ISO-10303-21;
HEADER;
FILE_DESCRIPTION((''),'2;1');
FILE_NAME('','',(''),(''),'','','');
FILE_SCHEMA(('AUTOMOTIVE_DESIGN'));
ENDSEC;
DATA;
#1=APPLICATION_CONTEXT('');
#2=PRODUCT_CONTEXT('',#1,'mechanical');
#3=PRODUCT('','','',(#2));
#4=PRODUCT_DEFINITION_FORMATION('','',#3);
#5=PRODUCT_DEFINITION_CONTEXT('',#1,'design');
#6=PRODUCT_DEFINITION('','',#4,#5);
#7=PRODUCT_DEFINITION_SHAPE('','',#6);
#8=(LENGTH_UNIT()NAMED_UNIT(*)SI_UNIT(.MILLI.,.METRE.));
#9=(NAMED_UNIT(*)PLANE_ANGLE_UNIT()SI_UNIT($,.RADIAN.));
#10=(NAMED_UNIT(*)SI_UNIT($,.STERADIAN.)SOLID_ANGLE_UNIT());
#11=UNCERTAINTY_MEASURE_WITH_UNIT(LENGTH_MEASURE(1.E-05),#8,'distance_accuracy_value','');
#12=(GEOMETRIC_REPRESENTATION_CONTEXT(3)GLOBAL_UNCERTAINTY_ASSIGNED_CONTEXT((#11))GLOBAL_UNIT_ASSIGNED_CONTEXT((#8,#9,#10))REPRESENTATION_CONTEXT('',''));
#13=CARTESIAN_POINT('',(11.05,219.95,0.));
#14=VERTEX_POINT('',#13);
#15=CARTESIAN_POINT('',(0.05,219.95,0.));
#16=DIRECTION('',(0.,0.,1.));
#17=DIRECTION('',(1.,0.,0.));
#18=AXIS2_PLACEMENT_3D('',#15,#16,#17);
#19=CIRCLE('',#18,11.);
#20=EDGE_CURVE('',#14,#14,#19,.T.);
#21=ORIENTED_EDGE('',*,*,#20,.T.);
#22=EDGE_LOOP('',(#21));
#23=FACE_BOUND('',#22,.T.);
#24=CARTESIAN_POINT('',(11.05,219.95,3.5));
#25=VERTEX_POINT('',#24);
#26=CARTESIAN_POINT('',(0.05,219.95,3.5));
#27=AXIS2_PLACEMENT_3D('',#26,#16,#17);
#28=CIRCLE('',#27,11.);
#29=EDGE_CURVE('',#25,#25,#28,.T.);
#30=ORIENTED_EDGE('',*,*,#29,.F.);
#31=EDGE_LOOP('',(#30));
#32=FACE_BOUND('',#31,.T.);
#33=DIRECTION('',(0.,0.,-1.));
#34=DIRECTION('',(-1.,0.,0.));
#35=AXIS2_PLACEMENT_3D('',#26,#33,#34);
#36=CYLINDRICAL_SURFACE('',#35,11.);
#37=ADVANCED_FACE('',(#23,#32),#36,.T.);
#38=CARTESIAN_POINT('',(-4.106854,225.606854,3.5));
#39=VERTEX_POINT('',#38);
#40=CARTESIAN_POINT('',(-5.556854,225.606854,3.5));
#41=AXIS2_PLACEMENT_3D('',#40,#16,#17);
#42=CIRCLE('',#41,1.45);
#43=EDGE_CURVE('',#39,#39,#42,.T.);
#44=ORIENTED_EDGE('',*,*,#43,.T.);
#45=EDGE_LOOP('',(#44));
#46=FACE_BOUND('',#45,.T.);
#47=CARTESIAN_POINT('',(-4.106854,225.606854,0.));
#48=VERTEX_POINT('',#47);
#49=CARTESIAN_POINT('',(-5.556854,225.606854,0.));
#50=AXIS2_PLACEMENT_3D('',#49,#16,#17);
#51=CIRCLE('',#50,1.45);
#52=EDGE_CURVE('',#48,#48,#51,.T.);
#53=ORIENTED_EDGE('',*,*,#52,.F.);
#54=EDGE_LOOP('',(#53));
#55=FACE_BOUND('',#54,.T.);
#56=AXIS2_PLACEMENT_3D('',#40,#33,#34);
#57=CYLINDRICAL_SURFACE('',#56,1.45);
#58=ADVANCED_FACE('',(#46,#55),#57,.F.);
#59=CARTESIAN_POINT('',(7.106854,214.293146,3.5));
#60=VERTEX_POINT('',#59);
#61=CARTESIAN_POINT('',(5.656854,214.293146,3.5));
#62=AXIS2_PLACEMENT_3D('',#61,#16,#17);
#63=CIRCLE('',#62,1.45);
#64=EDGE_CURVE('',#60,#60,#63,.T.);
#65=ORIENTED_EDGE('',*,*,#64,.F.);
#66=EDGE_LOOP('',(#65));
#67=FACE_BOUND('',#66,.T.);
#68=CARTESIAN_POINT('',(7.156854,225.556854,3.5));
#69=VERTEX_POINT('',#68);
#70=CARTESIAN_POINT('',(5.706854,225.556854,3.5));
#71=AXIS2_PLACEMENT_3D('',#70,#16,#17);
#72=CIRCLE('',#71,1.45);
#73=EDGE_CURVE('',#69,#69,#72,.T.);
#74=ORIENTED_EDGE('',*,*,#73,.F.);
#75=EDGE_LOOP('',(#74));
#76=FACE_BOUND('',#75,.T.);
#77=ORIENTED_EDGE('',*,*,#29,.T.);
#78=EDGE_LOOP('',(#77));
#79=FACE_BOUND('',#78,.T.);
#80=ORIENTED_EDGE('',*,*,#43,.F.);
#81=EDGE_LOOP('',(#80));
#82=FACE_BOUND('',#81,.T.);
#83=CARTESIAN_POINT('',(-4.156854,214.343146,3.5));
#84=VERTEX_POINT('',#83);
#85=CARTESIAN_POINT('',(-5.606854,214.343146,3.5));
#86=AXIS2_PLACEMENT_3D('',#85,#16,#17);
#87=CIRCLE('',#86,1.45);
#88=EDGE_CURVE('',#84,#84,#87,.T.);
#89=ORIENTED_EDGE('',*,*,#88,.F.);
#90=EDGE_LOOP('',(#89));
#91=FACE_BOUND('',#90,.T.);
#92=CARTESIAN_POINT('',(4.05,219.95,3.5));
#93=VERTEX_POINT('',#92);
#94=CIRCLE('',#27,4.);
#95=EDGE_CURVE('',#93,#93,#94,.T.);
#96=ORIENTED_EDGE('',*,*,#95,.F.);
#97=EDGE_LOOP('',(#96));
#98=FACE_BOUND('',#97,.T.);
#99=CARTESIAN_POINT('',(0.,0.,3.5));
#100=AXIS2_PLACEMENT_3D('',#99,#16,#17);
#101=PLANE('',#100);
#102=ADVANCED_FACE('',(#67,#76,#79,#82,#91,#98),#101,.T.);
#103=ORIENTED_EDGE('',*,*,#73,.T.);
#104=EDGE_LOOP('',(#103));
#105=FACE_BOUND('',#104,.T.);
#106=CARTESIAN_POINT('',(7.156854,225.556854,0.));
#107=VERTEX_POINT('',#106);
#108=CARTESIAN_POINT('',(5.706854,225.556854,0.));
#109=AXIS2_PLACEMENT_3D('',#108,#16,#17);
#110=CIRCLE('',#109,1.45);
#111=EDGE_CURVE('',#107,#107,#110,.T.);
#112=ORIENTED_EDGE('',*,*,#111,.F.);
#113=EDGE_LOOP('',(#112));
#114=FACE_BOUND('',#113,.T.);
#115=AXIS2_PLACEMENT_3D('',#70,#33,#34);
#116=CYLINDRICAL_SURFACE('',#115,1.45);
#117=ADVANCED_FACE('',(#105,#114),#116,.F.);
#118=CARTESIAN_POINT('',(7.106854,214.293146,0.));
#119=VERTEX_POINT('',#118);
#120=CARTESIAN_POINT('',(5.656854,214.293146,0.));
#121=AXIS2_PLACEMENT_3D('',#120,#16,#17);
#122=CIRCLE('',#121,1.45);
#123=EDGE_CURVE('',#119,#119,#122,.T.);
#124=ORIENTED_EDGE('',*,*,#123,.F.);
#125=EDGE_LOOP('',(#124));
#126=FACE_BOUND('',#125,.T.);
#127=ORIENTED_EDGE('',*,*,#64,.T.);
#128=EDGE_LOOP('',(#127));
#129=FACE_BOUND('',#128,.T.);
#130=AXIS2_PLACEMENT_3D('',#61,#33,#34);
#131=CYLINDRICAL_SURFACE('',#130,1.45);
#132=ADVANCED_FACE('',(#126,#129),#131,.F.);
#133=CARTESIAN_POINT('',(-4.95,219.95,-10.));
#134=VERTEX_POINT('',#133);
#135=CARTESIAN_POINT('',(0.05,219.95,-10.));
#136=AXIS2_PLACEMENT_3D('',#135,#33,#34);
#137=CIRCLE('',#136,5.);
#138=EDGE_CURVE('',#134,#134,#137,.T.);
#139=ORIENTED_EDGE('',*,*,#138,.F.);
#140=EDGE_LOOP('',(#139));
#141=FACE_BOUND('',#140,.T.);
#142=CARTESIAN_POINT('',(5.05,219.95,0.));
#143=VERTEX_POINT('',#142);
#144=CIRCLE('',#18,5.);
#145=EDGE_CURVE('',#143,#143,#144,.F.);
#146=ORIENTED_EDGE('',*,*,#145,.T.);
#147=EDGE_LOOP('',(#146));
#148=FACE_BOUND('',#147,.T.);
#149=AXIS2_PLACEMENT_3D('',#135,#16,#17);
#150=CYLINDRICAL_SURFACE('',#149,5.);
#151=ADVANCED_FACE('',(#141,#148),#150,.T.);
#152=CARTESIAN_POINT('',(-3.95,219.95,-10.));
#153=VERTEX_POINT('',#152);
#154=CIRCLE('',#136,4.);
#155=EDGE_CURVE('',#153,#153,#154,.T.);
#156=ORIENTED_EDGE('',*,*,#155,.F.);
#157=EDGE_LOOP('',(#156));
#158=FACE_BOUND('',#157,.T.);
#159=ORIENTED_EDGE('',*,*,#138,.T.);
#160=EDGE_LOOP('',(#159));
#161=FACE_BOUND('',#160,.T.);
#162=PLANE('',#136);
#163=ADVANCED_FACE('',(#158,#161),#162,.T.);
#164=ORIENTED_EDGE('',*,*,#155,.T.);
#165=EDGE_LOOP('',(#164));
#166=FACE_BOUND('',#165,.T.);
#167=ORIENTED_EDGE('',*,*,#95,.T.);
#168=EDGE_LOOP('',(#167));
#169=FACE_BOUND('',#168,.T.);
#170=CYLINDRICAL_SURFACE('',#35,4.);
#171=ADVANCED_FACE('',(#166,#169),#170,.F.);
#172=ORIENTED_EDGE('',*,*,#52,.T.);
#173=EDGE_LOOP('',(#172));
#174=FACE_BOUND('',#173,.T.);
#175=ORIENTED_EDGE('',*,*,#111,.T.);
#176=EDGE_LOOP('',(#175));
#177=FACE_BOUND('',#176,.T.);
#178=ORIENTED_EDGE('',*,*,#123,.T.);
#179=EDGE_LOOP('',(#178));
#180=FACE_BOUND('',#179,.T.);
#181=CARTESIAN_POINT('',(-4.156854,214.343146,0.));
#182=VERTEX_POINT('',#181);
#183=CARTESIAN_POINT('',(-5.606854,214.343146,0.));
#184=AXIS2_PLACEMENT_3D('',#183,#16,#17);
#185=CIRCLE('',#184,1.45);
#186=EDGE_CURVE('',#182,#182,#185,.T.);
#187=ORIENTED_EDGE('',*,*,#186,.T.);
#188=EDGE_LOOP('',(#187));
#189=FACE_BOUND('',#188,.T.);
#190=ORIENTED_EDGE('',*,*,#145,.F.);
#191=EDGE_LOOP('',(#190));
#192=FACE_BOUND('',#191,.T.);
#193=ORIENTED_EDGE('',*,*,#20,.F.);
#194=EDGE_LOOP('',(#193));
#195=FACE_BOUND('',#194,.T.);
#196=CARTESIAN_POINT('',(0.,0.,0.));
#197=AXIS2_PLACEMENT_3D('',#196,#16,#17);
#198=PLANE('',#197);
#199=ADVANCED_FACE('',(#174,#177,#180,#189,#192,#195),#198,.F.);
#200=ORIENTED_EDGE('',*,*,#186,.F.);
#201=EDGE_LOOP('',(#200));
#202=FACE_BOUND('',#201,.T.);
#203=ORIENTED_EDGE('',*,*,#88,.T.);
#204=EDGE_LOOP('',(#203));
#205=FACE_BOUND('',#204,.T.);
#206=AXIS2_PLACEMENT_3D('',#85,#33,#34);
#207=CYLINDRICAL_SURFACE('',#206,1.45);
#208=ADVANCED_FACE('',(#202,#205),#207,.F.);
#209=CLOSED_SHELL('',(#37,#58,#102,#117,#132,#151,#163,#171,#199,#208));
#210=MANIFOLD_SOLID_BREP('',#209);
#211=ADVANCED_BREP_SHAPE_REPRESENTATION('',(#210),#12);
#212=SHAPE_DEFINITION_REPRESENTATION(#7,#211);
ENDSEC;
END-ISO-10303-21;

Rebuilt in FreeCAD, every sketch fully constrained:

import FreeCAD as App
import Part
import Sketcher

V = App.Vector
Q = App.Units.Quantity

doc = App.newDocument("Part")
body = doc.addObject("PartDesign::Body", "Body")

# Sketch on XY plane
sketch1 = body.newObject("Sketcher::SketchObject", "Sketch")
sketch1.AttachmentSupport = (doc.getObject("XY_Plane"), [""])
sketch1.MapMode = "FlatFace"
sketch1.addGeometry(Part.Circle(V(0, 219.9, 0), V(0, 0, 1), 11), False)
sketch1.addGeometry(Part.Circle(V(-5.6, 214.3, 0), V(0, 0, 1), 1.4), False)
sketch1.addGeometry(Part.Circle(V(5.7, 214.3, 0), V(0, 0, 1), 1.4), False)
sketch1.addGeometry(Part.Circle(V(0, 219.9, 0), V(0, 0, 1), 4), False)
sketch1.addGeometry(Part.Circle(V(-5.6, 225.6, 0), V(0, 0, 1), 1.4), False)
sketch1.addGeometry(Part.Circle(V(5.7, 225.6, 0), V(0, 0, 1), 1.4), False)
sketch1.addConstraint(Sketcher.Constraint("Coincident", 3, 3, 0, 3))
sketch1.addConstraint(Sketcher.Constraint("Equal", 1, 2))
sketch1.addConstraint(Sketcher.Constraint("Equal", 2, 4))
sketch1.addConstraint(Sketcher.Constraint("Equal", 4, 5))
sketch1.addConstraint(Sketcher.Constraint("Diameter", 0, Q("22 mm")))
sketch1.addConstraint(Sketcher.Constraint("Diameter", 3, Q("8 mm")))
sketch1.addConstraint(Sketcher.Constraint("Diameter", 1, Q("2.9 mm")))
sketch1.addConstraint(Sketcher.Constraint("DistanceX", -1, 1, 0, 3, Q("0.05 mm")))
sketch1.addConstraint(Sketcher.Constraint("DistanceY", -1, 1, 0, 3, Q("219.95 mm")))
sketch1.addConstraint(Sketcher.Constraint("DistanceY", 2, 3, 1, 3, Q("0.05 mm")))
sketch1.addConstraint(Sketcher.Constraint("DistanceX", 1, 3, 4, 3, Q("0.05 mm")))
sketch1.addConstraint(Sketcher.Constraint("DistanceX", 2, 3, 5, 3, Q("0.05 mm")))
sketch1.addConstraint(Sketcher.Constraint("DistanceY", 5, 3, 4, 3, Q("0.05 mm")))
sketch1.addConstraint(Sketcher.Constraint("DistanceX", 1, 3, 2, 3, Q("11.263708 mm")))
sketch1.addConstraint(Sketcher.Constraint("DistanceY", 1, 3, 4, 3, Q("11.263708 mm")))
sketch1.addConstraint(Sketcher.Constraint("DistanceX", 1, 3, -1, 1, Q("5.606854 mm")))
sketch1.addConstraint(Sketcher.Constraint("DistanceY", -1, 1, 1, 3, Q("214.343146 mm")))
pad1 = body.newObject("PartDesign::Pad", "Pad")
pad1.Profile = sketch1
pad1.Length = 3.5

# Sketch on XY plane
sketch2 = body.newObject("Sketcher::SketchObject", "Sketch001")
sketch2.AttachmentSupport = (doc.getObject("XY_Plane"), [""])
sketch2.MapMode = "FlatFace"
sketch2.addGeometry(Part.Circle(V(0, 219.9, 0), V(0, 0, 1), 5), False)
sketch2.addGeometry(Part.Circle(V(0, 219.9, 0), V(0, 0, 1), 4), False)
sketch2.addConstraint(Sketcher.Constraint("Coincident", 1, 3, 0, 3))
sketch2.addConstraint(Sketcher.Constraint("Diameter", 0, Q("10 mm")))
sketch2.addConstraint(Sketcher.Constraint("Diameter", 1, Q("8 mm")))
sketch2.addConstraint(Sketcher.Constraint("DistanceX", -1, 1, 0, 3, Q("0.05 mm")))
sketch2.addConstraint(Sketcher.Constraint("DistanceY", -1, 1, 0, 3, Q("219.95 mm")))
pad2 = body.newObject("PartDesign::Pad", "Pad001")
pad2.Profile = sketch2
pad2.Length = 10
pad2.Reversed = True

doc.recompute()
